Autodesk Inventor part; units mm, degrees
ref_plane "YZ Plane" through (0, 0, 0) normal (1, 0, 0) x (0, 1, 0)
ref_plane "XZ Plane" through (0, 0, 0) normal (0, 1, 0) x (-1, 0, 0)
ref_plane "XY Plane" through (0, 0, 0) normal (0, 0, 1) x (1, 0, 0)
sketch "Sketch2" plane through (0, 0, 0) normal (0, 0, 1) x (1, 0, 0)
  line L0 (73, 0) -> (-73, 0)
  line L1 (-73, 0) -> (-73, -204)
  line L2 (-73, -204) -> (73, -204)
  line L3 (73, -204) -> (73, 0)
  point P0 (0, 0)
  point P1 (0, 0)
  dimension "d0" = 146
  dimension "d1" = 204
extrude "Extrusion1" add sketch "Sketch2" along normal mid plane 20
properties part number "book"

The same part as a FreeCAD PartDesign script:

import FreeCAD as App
import Part
import Sketcher

V = App.Vector
Q = App.Units.Quantity


def add_polygon(sketch, points):
    """Adds a closed chain of lines whose ends are joined by coincident constraints."""
    first, n = sketch.GeometryCount, len(points)
    for a, b in zip(points, points[1:] + points[:1]):
        sketch.addGeometry(Part.LineSegment(App.Vector(*a, 0), App.Vector(*b, 0)), False)
    for i in range(n):
        sketch.addConstraint(Sketcher.Constraint("Coincident", first + i, 2, first + (i + 1) % n, 1))

doc = App.newDocument("Part")
body = doc.addObject("PartDesign::Body", "Body")

# Sketch on XY plane
sketch1 = body.newObject("Sketcher::SketchObject", "Sketch")
sketch1.AttachmentSupport = (doc.getObject("XY_Plane"), [""])
sketch1.MapMode = "FlatFace"
add_polygon(sketch1, [(73, -204), (73, 0), (-73, 0), (-73, -204)])  # lines 0-3
sketch1.addConstraint([
    Sketcher.Constraint("Vertical", 0),
    Sketcher.Constraint("Horizontal", 1),
    Sketcher.Constraint("Vertical", 2),
    Sketcher.Constraint("Horizontal", 3),
    Sketcher.Constraint("Symmetric", 0, 2, 1, 2, -1, 1),
    Sketcher.Constraint("DistanceX", 1, 2, 1, 1, Q("146 mm")),
    Sketcher.Constraint("DistanceY", 0, 1, 0, 2, Q("204 mm")),
])
pad1 = body.newObject("PartDesign::Pad", "Pad")
pad1.Profile = sketch1
pad1.Length = 20
pad1.Midplane = True

doc.recompute()
